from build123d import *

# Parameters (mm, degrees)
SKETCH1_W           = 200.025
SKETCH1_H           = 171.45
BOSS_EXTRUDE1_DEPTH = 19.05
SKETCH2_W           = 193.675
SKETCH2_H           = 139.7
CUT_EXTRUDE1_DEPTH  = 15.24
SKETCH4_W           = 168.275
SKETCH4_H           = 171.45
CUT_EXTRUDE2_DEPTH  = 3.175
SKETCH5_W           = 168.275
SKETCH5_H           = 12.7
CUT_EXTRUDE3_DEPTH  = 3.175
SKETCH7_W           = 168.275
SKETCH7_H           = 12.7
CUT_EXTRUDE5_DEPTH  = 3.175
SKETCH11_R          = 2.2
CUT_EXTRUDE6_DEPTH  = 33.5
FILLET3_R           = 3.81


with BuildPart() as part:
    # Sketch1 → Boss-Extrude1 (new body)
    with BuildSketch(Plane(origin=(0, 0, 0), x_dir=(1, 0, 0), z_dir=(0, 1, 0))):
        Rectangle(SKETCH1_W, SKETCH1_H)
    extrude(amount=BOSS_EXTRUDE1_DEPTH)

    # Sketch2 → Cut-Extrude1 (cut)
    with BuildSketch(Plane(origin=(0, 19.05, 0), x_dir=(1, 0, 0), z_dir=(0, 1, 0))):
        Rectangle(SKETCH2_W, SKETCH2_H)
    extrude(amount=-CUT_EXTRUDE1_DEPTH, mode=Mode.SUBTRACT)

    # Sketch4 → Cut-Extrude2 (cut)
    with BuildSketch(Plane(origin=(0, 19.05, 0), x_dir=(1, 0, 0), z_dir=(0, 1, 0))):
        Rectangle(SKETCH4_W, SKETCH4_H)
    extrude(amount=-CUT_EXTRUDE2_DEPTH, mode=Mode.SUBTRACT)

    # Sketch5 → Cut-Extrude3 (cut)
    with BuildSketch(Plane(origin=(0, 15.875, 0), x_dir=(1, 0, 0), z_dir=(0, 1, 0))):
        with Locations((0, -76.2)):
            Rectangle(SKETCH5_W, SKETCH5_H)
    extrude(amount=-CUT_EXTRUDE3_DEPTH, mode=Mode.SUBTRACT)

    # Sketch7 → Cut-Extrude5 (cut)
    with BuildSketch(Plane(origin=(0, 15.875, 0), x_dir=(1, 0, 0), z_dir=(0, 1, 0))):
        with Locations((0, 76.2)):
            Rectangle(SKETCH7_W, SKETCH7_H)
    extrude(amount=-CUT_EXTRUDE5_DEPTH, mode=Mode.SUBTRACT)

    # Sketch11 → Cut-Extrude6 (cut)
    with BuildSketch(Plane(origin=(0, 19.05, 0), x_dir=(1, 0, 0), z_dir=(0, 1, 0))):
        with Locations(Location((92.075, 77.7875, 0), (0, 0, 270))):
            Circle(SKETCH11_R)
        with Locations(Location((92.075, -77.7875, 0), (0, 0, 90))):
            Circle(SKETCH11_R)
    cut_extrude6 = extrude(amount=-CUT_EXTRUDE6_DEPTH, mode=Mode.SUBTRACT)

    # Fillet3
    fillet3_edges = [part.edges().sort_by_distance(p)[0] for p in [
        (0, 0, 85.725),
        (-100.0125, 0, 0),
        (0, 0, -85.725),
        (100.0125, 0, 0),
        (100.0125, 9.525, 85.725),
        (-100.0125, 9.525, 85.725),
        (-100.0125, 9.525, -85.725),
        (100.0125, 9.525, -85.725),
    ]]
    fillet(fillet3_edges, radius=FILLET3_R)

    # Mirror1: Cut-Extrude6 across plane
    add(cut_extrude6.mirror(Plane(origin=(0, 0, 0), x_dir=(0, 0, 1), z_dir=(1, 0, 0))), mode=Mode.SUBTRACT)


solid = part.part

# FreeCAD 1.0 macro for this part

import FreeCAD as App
import Part
import Sketcher
from FreeCAD import Vector
Q = App.Units.Quantity


def edges_at(feature, points):
    """Names of the edges that pass closest to the given points."""
    edges = feature.Shape.Edges
    near = lambda p: min(range(len(edges)), key=lambda i: edges[i].distToShape(Part.Vertex(*p))[0])
    return sorted({f"Edge{near(p) + 1}" for p in points})


def add_polygon(sketch, points):
    """Adds a closed chain of lines whose ends are joined by coincident constraints."""
    first, n = sketch.GeometryCount, len(points)
    for a, b in zip(points, points[1:] + points[:1]):
        sketch.addGeometry(Part.LineSegment(App.Vector(*a, 0), App.Vector(*b, 0)), False)
    for i in range(n):
        sketch.addConstraint(Sketcher.Constraint("Coincident", first + i, 2, first + (i + 1) % n, 1))

doc = App.newDocument("Part")
body = doc.addObject("PartDesign::Body", "Body")

sketch1 = doc.addObject("Sketcher::SketchObject", "Sketch")
body.addObject(sketch1)
sketch1.AttachmentSupport = (doc.XZ_Plane, [""])
sketch1.MapMode = "FlatFace"
add_polygon(sketch1, [(-100, -86), (-100, 86), (100, 86), (100, -86)])
sketch1.addConstraint([
    Sketcher.Constraint("Vertical", 0),
    Sketcher.Constraint("Horizontal", 1),
    Sketcher.Constraint("Vertical", 2),
    Sketcher.Constraint("Horizontal", 3),
    Sketcher.Constraint("Symmetric", 0, 2, 2, 2, -1, 1),
    Sketcher.Constraint("DistanceY", 0, 1, 0, 2, Q("6.75 in")),
    Sketcher.Constraint("DistanceX", 1, 1, 1, 2, Q("7.875 in")),
])
pad1 = doc.addObject("PartDesign::Pad", "Pad")
body.addObject(pad1)
pad1.Profile = sketch1
pad1.Length = Q("0.75 in")
pad1.Reversed = True

sketch2 = doc.addObject("Sketcher::SketchObject", "Sketch001")
body.addObject(sketch2)
sketch2.AttachmentSupport = (doc.XZ_Plane, [""])
sketch2.MapMode = "FlatFace"
sketch2.AttachmentOffset = App.Placement(Vector(0, 0, -0.75 * 25.4), App.Rotation())
add_polygon(sketch2, [(-97, -70), (-97, 70), (97, 70), (97, -70)])
sketch2.addConstraint([
    Sketcher.Constraint("Vertical", 0),
    Sketcher.Constraint("Horizontal", 1),
    Sketcher.Constraint("Vertical", 2),
    Sketcher.Constraint("Horizontal", 3),
    Sketcher.Constraint("Symmetric", 0, 2, 2, 2, -1, 1),
    Sketcher.Constraint("DistanceY", 0, 1, 0, 2, Q("5.5 in")),
    Sketcher.Constraint("DistanceX", 1, 1, 1, 2, Q("7.625 in")),
])
pocket1 = doc.addObject("PartDesign::Pocket", "Pocket")
body.addObject(pocket1)
pocket1.Profile = sketch2
pocket1.Length = Q("0.6 in")
pocket1.Reversed = True

sketch3 = doc.addObject("Sketcher::SketchObject", "Sketch002")
body.addObject(sketch3)
sketch3.AttachmentSupport = (doc.XZ_Plane, [""])
sketch3.MapMode = "FlatFace"
sketch3.AttachmentOffset = App.Placement(Vector(0, 0, -0.75 * 25.4), App.Rotation())
add_polygon(sketch3, [(-84, -86), (-84, 86), (84, 86), (84, -86)])
sketch3.addConstraint([
    Sketcher.Constraint("Vertical", 0),
    Sketcher.Constraint("Horizontal", 1),
    Sketcher.Constraint("Vertical", 2),
    Sketcher.Constraint("Horizontal", 3),
    Sketcher.Constraint("Symmetric", 0, 2, 2, 2, -1, 1),
    Sketcher.Constraint("DistanceY", 0, 1, 0, 2, Q("6.75 in")),
    Sketcher.Constraint("DistanceX", 1, 1, 1, 2, Q("6.625 in")),
])
pocket2 = doc.addObject("PartDesign::Pocket", "Pocket001")
body.addObject(pocket2)
pocket2.Profile = sketch3
pocket2.Length = Q("0.125 in")
pocket2.Reversed = True

sketch4 = doc.addObject("Sketcher::SketchObject", "Sketch003")
body.addObject(sketch4)
sketch4.AttachmentSupport = (doc.XZ_Plane, [""])
sketch4.MapMode = "FlatFace"
sketch4.AttachmentOffset = App.Placement(Vector(0, 0, -0.625 * 25.4), App.Rotation())
add_polygon(sketch4, [(-84, 70), (-84, 83), (84, 83), (84, 70)])
sketch4.addConstraint([
    Sketcher.Constraint("Vertical", 0),
    Sketcher.Constraint("Horizontal", 1),
    Sketcher.Constraint("Vertical", 2),
    Sketcher.Constraint("Horizontal", 3),
    Sketcher.Constraint("DistanceY", 0, 1, 0, 2, Q("0.5 in")),
    Sketcher.Constraint("DistanceX", 1, 1, 1, 2, Q("6.625 in")),
    Sketcher.Constraint("DistanceY", -1, 1, 0, 2, Q("3.25 in")),
    Sketcher.Constraint("DistanceX", 0, 2, -1, 1, Q("3.3125 in")),
])
pocket3 = doc.addObject("PartDesign::Pocket", "Pocket002")
body.addObject(pocket3)
pocket3.Profile = sketch4
pocket3.Length = Q("0.125 in")
pocket3.Reversed = True

sketch5 = doc.addObject("Sketcher::SketchObject", "Sketch004")
body.addObject(sketch5)
sketch5.AttachmentSupport = (doc.XZ_Plane, [""])
sketch5.MapMode = "FlatFace"
sketch5.AttachmentOffset = App.Placement(Vector(0, 0, -0.625 * 25.4), App.Rotation())
add_polygon(sketch5, [(-84, -83), (-84, -70), (84, -70), (84, -83)])
sketch5.addConstraint([
    Sketcher.Constraint("Vertical", 0),
    Sketcher.Constraint("Horizontal", 1),
    Sketcher.Constraint("Vertical", 2),
    Sketcher.Constraint("Horizontal", 3),
    Sketcher.Constraint("DistanceY", 0, 1, 0, 2, Q("0.5 in")),
    Sketcher.Constraint("DistanceX", 1, 1, 1, 2, Q("6.625 in")),
    Sketcher.Constraint("DistanceY", 0, 2, -1, 1, Q("2.75 in")),
    Sketcher.Constraint("DistanceX", 0, 2, -1, 1, Q("3.3125 in")),
])
pocket4 = doc.addObject("PartDesign::Pocket", "Pocket003")
body.addObject(pocket4)
pocket4.Profile = sketch5
pocket4.Length = Q("0.125 in")
pocket4.Reversed = True

sketch6 = doc.addObject("Sketcher::SketchObject", "Sketch005")
body.addObject(sketch6)
sketch6.AttachmentSupport = (doc.XZ_Plane, [""])
sketch6.MapMode = "FlatFace"
sketch6.AttachmentOffset = App.Placement(Vector(0, 0, -0.75 * 25.4), App.Rotation())
sketch6.addGeometry([
    Part.Circle(Vector(92.1, -77.8, 0), Vector(0, 0, 1), 2.2),
    Part.Circle(Vector(92.1, 77.8, 0), Vector(0, 0, 1), 2.2),
], False)
sketch6.addConstraint([
    Sketcher.Constraint("Equal", 0, 1),
    Sketcher.Constraint("Symmetric", 0, 3, 1, 3, -1),
    Sketcher.Constraint("Diameter", 0, Q("4.4 mm")),
    Sketcher.Constraint("DistanceX", -1, 1, 0, 3, Q("3.625 in")),
    Sketcher.Constraint("DistanceY", 0, 3, -1, 1, Q("3.0625 in")),
])
pocket5 = doc.addObject("PartDesign::Pocket", "Pocket004")
body.addObject(pocket5)
pocket5.Profile = sketch6
pocket5.Length = 33.5
pocket5.Reversed = True
doc.recompute()

fillet = doc.addObject("PartDesign::Fillet", "Fillet")
body.addObject(fillet)
fillet.Base = (pocket5, edges_at(pocket5, [
    (0, 0, 85.725),
    (-100.013, 0, 0),
    (0, 0, -85.725),
    (100.013, 0, 0),
    (100.013, 9.525, 85.725),
    (-100.013, 9.525, 85.725),
    (-100.013, 9.525, -85.725),
    (100.013, 9.525, -85.725),
]))
fillet.Radius = Q("0.15 in")
doc.recompute()

mirrored = doc.addObject("PartDesign::Mirrored", "Mirrored")
body.addObject(mirrored)
mirrored.Originals = [pocket5]
mirrored.MirrorPlane = (doc.YZ_Plane, [""])
body.Tip = mirrored

doc.recompute()
